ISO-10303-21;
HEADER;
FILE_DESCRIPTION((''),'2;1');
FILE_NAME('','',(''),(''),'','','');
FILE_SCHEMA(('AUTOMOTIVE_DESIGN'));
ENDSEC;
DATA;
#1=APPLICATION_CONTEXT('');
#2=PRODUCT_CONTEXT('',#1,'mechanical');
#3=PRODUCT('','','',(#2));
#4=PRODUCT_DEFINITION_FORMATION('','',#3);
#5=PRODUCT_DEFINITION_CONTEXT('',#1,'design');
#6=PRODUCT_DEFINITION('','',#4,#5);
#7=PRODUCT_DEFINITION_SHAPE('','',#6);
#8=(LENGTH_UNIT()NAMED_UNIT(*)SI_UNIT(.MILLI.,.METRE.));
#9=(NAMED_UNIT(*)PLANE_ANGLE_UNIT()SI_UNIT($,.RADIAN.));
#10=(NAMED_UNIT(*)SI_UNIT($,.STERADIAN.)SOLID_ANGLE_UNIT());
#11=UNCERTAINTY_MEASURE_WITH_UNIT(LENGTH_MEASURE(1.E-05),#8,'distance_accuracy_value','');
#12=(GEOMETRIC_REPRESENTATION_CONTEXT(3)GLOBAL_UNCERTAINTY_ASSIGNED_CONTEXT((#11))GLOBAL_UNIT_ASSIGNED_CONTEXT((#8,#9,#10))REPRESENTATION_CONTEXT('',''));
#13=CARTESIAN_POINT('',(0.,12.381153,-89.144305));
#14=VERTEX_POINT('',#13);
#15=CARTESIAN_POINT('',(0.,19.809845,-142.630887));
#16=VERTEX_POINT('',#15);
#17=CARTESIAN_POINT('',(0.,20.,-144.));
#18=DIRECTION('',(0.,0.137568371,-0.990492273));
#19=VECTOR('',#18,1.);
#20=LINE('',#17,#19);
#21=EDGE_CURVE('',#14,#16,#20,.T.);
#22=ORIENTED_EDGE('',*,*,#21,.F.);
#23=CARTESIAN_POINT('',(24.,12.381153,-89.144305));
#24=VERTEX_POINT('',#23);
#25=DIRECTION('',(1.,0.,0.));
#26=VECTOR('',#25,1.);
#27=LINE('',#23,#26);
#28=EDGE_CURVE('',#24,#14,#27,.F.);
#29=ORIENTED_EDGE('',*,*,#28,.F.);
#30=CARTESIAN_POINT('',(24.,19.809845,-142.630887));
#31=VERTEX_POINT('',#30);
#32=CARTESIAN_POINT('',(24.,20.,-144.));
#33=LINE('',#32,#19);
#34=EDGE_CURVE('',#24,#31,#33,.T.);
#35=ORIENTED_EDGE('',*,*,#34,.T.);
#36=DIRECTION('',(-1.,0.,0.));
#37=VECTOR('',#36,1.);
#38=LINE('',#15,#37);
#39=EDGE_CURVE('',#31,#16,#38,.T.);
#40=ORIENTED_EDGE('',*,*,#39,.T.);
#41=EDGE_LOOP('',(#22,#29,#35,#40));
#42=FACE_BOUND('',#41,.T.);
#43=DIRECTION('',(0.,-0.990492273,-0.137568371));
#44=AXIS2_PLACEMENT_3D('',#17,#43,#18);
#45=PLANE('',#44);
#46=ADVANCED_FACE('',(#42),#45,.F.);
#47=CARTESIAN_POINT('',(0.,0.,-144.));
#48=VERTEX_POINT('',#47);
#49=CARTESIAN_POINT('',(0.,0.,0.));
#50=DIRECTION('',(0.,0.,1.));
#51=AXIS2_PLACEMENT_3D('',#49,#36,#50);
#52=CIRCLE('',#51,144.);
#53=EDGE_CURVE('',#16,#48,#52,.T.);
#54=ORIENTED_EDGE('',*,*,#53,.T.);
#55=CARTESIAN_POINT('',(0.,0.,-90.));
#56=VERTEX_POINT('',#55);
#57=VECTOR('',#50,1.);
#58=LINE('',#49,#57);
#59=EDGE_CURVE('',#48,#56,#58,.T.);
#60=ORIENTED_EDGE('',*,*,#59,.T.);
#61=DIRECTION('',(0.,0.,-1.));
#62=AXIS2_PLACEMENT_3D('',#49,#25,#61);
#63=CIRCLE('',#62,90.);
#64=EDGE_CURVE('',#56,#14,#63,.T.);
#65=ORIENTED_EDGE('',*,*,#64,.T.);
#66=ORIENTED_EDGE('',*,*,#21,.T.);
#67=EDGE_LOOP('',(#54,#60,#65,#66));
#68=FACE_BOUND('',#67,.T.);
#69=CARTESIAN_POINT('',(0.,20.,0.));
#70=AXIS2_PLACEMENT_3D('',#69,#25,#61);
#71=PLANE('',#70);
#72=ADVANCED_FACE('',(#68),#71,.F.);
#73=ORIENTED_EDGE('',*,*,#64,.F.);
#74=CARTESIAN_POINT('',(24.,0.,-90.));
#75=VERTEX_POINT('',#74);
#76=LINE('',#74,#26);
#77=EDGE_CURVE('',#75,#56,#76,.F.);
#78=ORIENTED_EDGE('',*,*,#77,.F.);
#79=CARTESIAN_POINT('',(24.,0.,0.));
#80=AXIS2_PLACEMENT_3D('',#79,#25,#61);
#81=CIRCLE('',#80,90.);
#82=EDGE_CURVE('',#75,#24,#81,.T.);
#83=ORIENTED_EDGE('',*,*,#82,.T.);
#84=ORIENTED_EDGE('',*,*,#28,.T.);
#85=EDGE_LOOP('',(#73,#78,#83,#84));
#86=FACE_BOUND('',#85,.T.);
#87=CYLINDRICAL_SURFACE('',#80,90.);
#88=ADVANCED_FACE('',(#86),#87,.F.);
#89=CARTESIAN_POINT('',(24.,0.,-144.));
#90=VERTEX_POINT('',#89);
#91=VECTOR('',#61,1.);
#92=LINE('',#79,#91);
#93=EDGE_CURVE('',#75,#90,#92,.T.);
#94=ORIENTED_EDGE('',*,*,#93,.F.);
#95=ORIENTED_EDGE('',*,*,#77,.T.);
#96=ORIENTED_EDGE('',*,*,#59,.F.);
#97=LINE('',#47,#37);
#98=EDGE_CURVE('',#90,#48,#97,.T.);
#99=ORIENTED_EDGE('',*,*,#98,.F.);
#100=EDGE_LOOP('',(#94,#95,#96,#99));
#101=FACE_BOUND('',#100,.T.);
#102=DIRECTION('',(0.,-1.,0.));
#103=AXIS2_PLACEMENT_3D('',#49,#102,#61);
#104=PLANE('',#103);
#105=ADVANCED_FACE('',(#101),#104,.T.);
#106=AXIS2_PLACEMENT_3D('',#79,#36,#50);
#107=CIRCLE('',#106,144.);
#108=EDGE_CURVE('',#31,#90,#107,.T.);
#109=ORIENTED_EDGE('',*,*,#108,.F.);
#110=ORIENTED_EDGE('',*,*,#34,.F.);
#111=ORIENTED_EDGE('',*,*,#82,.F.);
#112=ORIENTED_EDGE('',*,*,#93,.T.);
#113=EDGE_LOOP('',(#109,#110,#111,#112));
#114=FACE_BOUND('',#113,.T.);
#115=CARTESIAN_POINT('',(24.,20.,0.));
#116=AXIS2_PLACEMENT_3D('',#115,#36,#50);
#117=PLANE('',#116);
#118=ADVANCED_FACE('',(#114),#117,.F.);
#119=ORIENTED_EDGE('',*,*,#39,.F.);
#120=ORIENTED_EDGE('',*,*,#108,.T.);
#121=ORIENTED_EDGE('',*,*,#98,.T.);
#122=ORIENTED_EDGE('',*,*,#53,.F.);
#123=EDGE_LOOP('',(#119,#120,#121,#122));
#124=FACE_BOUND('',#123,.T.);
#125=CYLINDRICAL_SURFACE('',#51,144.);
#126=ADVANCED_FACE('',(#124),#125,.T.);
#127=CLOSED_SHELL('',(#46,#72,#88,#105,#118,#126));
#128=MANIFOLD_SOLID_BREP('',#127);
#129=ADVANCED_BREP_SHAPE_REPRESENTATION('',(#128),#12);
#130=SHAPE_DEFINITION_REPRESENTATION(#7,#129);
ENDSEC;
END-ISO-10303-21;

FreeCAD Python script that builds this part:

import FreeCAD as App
import Part
import Sketcher

V = App.Vector
Q = App.Units.Quantity

doc = App.newDocument("Part")
params = doc.addObject("Spreadsheet::Sheet", "Params")
for row, (alias, value) in enumerate([
    ("sketch1_width", "24 mm"),
    ("sketch1_height", "144 mm"),
    ("pad1_length", "20 mm"),
    ("sketch2_width", "20 mm"),
    ("sketch2_height", "144 mm"),
    ("sketch3_width", "24 mm"),
    ("groove_angle", "360 deg"),
    ("sketch4_width", "24 mm"),
    ("sketch4_height", "90 mm"),
    ("groove2_angle", "360 deg"),
], start=1):
    params.set(f"A{row}", alias)
    params.set(f"B{row}", "=" + value)
    params.setAlias(f"B{row}", alias)

body = doc.addObject("PartDesign::Body", "Body")

# Sketch on XZ plane
sketch1 = body.newObject("Sketcher::SketchObject", "Sketch")
sketch1.AttachmentSupport = (doc.getObject("XZ_Plane"), [""])
sketch1.MapMode = "FlatFace"
sketch1.addGeometry([
    Part.LineSegment(V(0, -144, 0), V(0, 0, 0)),
    Part.LineSegment(V(0, 0, 0), V(24, 0, 0)),
    Part.LineSegment(V(24, 0, 0), V(24, -144, 0)),
    Part.LineSegment(V(24, -144, 0), V(0, -144, 0)),
], False)
sketch1.addConstraint([
    Sketcher.Constraint("Coincident", 0, 2, 1, 1),
    Sketcher.Constraint("Coincident", 1, 2, 2, 1),
    Sketcher.Constraint("Coincident", 2, 2, 3, 1),
    Sketcher.Constraint("Coincident", 3, 2, 0, 1),
    Sketcher.Constraint("Vertical", 0),
    Sketcher.Constraint("Horizontal", 1),
    Sketcher.Constraint("Vertical", 2),
    Sketcher.Constraint("Horizontal", 3),
    Sketcher.Constraint("Coincident", 0, 2, -1, 1),
    Sketcher.Constraint("DistanceX", 1, 1, 1, 2, Q("24 mm")),
    Sketcher.Constraint("DistanceY", 0, 1, 0, 2, Q("144 mm")),
])
sketch1.setExpression("Constraints[9]", "Params.sketch1_width")
sketch1.setExpression("Constraints[10]", "Params.sketch1_height")
pad1 = body.newObject("PartDesign::Pad", "Pad")
pad1.Profile = sketch1
pad1.setExpression("Length", "Params.pad1_length")
pad1.Reversed = True

# Sketch on YZ plane
sketch2 = body.newObject("Sketcher::SketchObject", "Sketch001")
sketch2.AttachmentSupport = (doc.getObject("YZ_Plane"), [""])
sketch2.MapMode = "FlatFace"
sketch2.AttachmentOffset = App.Placement(V(0, 0, 24), App.Rotation())
sketch2.addGeometry([
    Part.LineSegment(V(0, 0, 0), V(20, -144, 0)),
    Part.LineSegment(V(20, -144, 0), V(20, 0, 0)),
    Part.LineSegment(V(20, 0, 0), V(0, 0, 0)),
], False)
sketch2.addConstraint([
    Sketcher.Constraint("Coincident", 0, 2, 1, 1),
    Sketcher.Constraint("Coincident", 1, 2, 2, 1),
    Sketcher.Constraint("Coincident", 2, 2, 0, 1),
    Sketcher.Constraint("Vertical", 1),
    Sketcher.Constraint("Horizontal", 2),
    Sketcher.Constraint("Coincident", 2, 2, -1, 1),
    Sketcher.Constraint("DistanceX", 2, 2, 2, 1, Q("20 mm")),
    Sketcher.Constraint("DistanceY", 1, 1, 1, 2, Q("144 mm")),
])
sketch2.setExpression("Constraints[6]", "Params.sketch2_width")
sketch2.setExpression("Constraints[7]", "Params.sketch2_height")
pocket1 = body.newObject("PartDesign::Pocket", "Pocket")
pocket1.Profile = sketch2
pocket1.Type = "ThroughAll"

# Sketch on XZ plane
sketch3 = body.newObject("Sketcher::SketchObject", "Sketch002")
sketch3.AttachmentSupport = (doc.getObject("XZ_Plane"), [""])
sketch3.MapMode = "FlatFace"
sketch3.addGeometry([
    Part.LineSegment(V(0, -144, 0), V(0, -184, 0)),
    Part.LineSegment(V(0, -184, 0), V(24, -184, 0)),
    Part.LineSegment(V(24, -184, 0), V(24, -144, 0)),
    Part.LineSegment(V(24, -144, 0), V(0, -144, 0)),
], False)
sketch3.addConstraint([
    Sketcher.Constraint("Coincident", 0, 2, 1, 1),
    Sketcher.Constraint("Coincident", 1, 2, 2, 1),
    Sketcher.Constraint("Coincident", 2, 2, 3, 1),
    Sketcher.Constraint("Coincident", 3, 2, 0, 1),
    Sketcher.Constraint("Vertical", 0),
    Sketcher.Constraint("Horizontal", 1),
    Sketcher.Constraint("Vertical", 2),
    Sketcher.Constraint("Horizontal", 3),
    Sketcher.Constraint("PointOnObject", 0, 2, -2),
    Sketcher.Constraint("DistanceX", 1, 1, 1, 2, Q("24 mm")),
    Sketcher.Constraint("DistanceY", 2, 2, -1, 1, Q("144 mm")),
    Sketcher.Constraint("DistanceY", 0, 2, 0, 1, Q("40.261394 mm")),
])
sketch3.setExpression("Constraints[9]", "Params.sketch3_width")
groove = body.newObject("PartDesign::Groove", "Groove")
groove.Profile = sketch3
groove.ReferenceAxis = (sketch3, ["H_Axis"])
groove.setExpression("Angle", "Params.groove_angle")

# Sketch on XZ plane
sketch4 = body.newObject("Sketcher::SketchObject", "Sketch003")
sketch4.AttachmentSupport = (doc.getObject("XZ_Plane"), [""])
sketch4.MapMode = "FlatFace"
sketch4.addGeometry([
    Part.LineSegment(V(0, 0, 0), V(0, -90, 0)),
    Part.LineSegment(V(0, -90, 0), V(24, -90, 0)),
    Part.LineSegment(V(24, -90, 0), V(24, 0, 0)),
    Part.LineSegment(V(24, 0, 0), V(0, 0, 0)),
], False)
sketch4.addConstraint([
    Sketcher.Constraint("Coincident", 0, 2, 1, 1),
    Sketcher.Constraint("Coincident", 1, 2, 2, 1),
    Sketcher.Constraint("Coincident", 2, 2, 3, 1),
    Sketcher.Constraint("Coincident", 3, 2, 0, 1),
    Sketcher.Constraint("Vertical", 0),
    Sketcher.Constraint("Horizontal", 1),
    Sketcher.Constraint("Vertical", 2),
    Sketcher.Constraint("Horizontal", 3),
    Sketcher.Constraint("Coincident", 3, 2, -1, 1),
    Sketcher.Constraint("DistanceX", 1, 1, 1, 2, Q("24 mm")),
    Sketcher.Constraint("DistanceY", 0, 2, 0, 1, Q("90 mm")),
])
sketch4.setExpression("Constraints[9]", "Params.sketch4_width")
sketch4.setExpression("Constraints[10]", "Params.sketch4_height")
groove2 = body.newObject("PartDesign::Groove", "Groove001")
groove2.Profile = sketch4
groove2.ReferenceAxis = (sketch4, ["H_Axis"])
groove2.setExpression("Angle", "Params.groove2_angle")

doc.recompute()
